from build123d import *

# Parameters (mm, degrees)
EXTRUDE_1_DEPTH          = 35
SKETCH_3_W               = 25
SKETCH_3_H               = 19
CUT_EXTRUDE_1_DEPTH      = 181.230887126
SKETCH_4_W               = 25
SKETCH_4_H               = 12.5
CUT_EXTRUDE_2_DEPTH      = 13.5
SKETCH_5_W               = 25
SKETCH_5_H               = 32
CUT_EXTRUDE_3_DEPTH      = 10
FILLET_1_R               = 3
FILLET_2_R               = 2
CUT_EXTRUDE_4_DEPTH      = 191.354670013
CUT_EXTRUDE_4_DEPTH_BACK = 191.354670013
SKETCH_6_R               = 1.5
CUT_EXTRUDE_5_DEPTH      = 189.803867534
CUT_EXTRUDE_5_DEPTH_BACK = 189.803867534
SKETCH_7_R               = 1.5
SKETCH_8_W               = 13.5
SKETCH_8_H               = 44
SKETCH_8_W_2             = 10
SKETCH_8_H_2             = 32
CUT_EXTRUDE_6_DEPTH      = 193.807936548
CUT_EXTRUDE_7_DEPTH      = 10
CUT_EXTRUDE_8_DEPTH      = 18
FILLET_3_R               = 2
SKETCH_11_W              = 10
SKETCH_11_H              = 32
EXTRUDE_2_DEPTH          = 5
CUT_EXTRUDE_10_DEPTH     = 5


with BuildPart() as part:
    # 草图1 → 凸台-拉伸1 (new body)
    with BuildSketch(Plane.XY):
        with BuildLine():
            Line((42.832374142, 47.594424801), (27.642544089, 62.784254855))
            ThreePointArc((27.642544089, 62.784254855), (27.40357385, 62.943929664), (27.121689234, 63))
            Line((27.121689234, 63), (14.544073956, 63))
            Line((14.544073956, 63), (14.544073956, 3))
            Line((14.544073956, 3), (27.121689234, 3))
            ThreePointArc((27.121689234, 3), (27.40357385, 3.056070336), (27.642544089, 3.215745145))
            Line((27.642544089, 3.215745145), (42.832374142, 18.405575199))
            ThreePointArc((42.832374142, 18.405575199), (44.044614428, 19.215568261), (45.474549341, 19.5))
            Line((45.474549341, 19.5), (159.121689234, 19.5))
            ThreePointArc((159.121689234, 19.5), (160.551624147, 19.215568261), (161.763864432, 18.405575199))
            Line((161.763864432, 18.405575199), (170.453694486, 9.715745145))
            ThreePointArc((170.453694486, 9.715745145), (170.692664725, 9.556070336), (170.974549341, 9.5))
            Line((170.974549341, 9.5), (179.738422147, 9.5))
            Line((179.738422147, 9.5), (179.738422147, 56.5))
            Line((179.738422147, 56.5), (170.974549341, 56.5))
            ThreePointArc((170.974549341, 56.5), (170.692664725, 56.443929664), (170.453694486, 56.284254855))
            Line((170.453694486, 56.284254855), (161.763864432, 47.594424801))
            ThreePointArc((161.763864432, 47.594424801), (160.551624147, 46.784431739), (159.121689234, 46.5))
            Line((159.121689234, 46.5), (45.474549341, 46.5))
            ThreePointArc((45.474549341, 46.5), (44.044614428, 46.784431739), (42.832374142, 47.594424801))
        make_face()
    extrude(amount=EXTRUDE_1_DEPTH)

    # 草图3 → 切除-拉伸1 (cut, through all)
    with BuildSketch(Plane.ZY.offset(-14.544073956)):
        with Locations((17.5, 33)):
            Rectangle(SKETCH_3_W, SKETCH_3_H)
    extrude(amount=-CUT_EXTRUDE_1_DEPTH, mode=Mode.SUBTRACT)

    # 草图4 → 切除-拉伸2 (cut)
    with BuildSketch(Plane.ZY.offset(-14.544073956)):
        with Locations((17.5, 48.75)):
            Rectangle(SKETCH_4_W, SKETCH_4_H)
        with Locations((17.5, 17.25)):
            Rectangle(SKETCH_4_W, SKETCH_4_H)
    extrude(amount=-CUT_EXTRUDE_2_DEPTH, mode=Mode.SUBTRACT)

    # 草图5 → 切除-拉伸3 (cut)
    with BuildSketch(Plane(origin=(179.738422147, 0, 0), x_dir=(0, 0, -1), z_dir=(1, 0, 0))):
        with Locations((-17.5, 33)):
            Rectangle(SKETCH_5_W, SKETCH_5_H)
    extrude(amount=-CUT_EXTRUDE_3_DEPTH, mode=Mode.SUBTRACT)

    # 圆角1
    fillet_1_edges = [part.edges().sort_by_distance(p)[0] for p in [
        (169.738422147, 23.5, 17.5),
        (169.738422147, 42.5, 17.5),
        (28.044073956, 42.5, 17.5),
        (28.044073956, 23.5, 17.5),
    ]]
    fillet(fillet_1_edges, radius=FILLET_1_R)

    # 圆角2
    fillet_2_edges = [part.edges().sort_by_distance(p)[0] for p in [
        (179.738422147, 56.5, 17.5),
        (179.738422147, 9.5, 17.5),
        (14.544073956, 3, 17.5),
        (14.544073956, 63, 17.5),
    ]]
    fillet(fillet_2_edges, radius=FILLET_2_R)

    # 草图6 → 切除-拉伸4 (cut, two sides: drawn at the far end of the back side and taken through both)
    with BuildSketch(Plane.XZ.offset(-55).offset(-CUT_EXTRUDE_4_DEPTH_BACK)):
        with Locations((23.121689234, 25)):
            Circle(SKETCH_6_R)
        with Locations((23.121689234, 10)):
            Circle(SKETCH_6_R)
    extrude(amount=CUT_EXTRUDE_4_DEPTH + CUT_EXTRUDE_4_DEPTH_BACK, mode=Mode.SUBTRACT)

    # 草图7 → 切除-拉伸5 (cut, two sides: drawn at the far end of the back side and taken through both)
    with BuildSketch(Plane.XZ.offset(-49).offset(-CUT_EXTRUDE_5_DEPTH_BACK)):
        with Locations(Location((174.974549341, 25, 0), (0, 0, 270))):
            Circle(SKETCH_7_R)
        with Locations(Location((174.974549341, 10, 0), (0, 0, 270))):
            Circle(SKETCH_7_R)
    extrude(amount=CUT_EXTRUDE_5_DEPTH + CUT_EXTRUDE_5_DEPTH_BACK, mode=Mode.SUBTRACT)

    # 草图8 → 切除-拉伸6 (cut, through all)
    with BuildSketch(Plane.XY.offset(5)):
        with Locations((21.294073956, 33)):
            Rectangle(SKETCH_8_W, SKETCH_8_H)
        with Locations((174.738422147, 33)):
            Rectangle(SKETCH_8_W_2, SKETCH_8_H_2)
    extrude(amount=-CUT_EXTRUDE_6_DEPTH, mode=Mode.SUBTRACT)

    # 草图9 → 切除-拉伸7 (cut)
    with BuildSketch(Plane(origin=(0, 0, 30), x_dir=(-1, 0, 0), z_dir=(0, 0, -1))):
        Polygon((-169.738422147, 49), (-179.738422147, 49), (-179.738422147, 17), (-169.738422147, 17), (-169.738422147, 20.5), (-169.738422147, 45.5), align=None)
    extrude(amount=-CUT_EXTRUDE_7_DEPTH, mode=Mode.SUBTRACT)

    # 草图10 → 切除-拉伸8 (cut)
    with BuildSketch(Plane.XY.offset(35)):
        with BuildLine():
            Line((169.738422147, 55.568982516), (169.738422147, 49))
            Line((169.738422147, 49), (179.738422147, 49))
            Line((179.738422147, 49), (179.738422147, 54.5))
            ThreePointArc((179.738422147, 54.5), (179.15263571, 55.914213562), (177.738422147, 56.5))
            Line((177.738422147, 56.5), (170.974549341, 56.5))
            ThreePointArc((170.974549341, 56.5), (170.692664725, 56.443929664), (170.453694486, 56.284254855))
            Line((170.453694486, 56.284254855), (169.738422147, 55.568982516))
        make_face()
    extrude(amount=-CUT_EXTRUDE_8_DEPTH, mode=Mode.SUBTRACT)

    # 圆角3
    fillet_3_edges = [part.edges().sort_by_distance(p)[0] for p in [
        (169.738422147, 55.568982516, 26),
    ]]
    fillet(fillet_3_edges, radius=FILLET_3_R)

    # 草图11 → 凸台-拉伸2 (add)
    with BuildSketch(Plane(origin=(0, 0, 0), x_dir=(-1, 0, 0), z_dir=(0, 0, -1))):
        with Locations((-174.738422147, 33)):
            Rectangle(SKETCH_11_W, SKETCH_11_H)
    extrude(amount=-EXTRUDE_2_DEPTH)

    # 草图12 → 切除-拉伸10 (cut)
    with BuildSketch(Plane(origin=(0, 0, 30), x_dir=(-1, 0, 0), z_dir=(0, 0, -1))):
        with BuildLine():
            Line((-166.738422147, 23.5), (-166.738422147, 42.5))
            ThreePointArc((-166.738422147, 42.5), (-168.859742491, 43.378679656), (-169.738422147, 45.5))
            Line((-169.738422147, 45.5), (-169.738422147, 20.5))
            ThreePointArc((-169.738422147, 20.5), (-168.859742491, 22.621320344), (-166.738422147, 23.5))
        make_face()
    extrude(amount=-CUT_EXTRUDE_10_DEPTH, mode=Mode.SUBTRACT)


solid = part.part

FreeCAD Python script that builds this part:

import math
import FreeCAD as App
import Part
import Sketcher

V = App.Vector
Q = App.Units.Quantity


def edges_at(feature, points):
    """Names of the edges that pass closest to the given points."""
    edges = feature.Shape.Edges
    near = lambda p: min(range(len(edges)), key=lambda i: edges[i].distToShape(Part.Vertex(*p))[0])
    return sorted({f"Edge{near(p) + 1}" for p in points})

doc = App.newDocument("Part")
body = doc.addObject("PartDesign::Body", "Body")

# Sketch on XY plane
sketch1 = body.newObject("Sketcher::SketchObject", "Sketch")
sketch1.AttachmentSupport = (doc.getObject("XY_Plane"), [""])
sketch1.MapMode = "FlatFace"
sketch1.addGeometry([
    Part.LineSegment(V(42.8, 47.6, 0), V(27.6, 62.8, 0)),  # 0
    Part.ArcOfCircle(Part.Circle(V(27.1, 62.3, 0), V(0, 0, 1), 0.7), math.radians(45), math.radians(90)),  # 1
    Part.LineSegment(V(27.1, 63, 0), V(14.5, 63, 0)),  # 2
    Part.LineSegment(V(14.5, 63, 0), V(14.5, 3, 0)),  # 3
    Part.LineSegment(V(14.5, 3, 0), V(27.1, 3, 0)),  # 4
    Part.ArcOfCircle(Part.Circle(V(27.1, 3.7, 0), V(0, 0, 1), 0.7), math.radians(-90), math.radians(-45)),  # 5
    Part.LineSegment(V(27.6, 3.2, 0), V(42.8, 18.4, 0)),  # 6
    Part.ArcOfCircle(Part.Circle(V(45.5, 15.8, 0), V(0, 0, 1), 3.7), math.radians(90), math.radians(135)),  # 7
    Part.LineSegment(V(45.5, 19.5, 0), V(159.1, 19.5, 0)),  # 8
    Part.ArcOfCircle(Part.Circle(V(159.1, 15.8, 0), V(0, 0, 1), 3.7), math.radians(45), math.radians(90)),  # 9
    Part.LineSegment(V(161.8, 18.4, 0), V(170.5, 9.7, 0)),  # 10
    Part.ArcOfCircle(Part.Circle(V(171, 10.2, 0), V(0, 0, 1), 0.7), math.radians(-135), math.radians(-90)),  # 11
    Part.LineSegment(V(171, 9.5, 0), V(179.7, 9.5, 0)),  # 12
    Part.LineSegment(V(179.7, 9.5, 0), V(179.7, 56.5, 0)),  # 13
    Part.LineSegment(V(179.7, 56.5, 0), V(171, 56.5, 0)),  # 14
    Part.ArcOfCircle(Part.Circle(V(171, 55.8, 0), V(0, 0, 1), 0.7), math.radians(90), math.radians(135)),  # 15
    Part.LineSegment(V(170.5, 56.3, 0), V(161.8, 47.6, 0)),  # 16
    Part.ArcOfCircle(Part.Circle(V(159.1, 50.2, 0), V(0, 0, 1), 3.7), math.radians(-90), math.radians(-45)),  # 17
    Part.LineSegment(V(159.1, 46.5, 0), V(45.5, 46.5, 0)),  # 18
    Part.ArcOfCircle(Part.Circle(V(45.5, 50.2, 0), V(0, 0, 1), 3.7), math.radians(-135), math.radians(-90)),  # 19
], False)
sketch1.addConstraint([
    Sketcher.Constraint("Tangent", 0, 2, 1, 1),
    Sketcher.Constraint("Tangent", 1, 2, 2, 1),
    Sketcher.Constraint("Coincident", 2, 2, 3, 1),
    Sketcher.Constraint("Coincident", 3, 2, 4, 1),
    Sketcher.Constraint("Tangent", 4, 2, 5, 1),
    Sketcher.Constraint("Tangent", 5, 2, 6, 1),
    Sketcher.Constraint("Tangent", 6, 2, 7, 2),
    Sketcher.Constraint("Tangent", 7, 1, 8, 1),
    Sketcher.Constraint("Tangent", 8, 2, 9, 2),
    Sketcher.Constraint("Tangent", 9, 1, 10, 1),
    Sketcher.Constraint("Tangent", 10, 2, 11, 1),
    Sketcher.Constraint("Tangent", 11, 2, 12, 1),
    Sketcher.Constraint("Coincident", 12, 2, 13, 1),
    Sketcher.Constraint("Coincident", 13, 2, 14, 1),
    Sketcher.Constraint("Tangent", 14, 2, 15, 1),
    Sketcher.Constraint("Tangent", 15, 2, 16, 1),
    Sketcher.Constraint("Tangent", 16, 2, 17, 2),
    Sketcher.Constraint("Tangent", 17, 1, 18, 1),
    Sketcher.Constraint("Tangent", 18, 2, 19, 2),
    Sketcher.Constraint("Tangent", 19, 1, 0, 1),
    Sketcher.Constraint("Horizontal", 2),
    Sketcher.Constraint("Vertical", 3),
    Sketcher.Constraint("Horizontal", 4),
    Sketcher.Constraint("Horizontal", 8),
    Sketcher.Constraint("Horizontal", 12),
    Sketcher.Constraint("Vertical", 13),
    Sketcher.Constraint("Horizontal", 14),
    Sketcher.Constraint("Horizontal", 18),
    Sketcher.Constraint("Equal", 1, 5),
    Sketcher.Constraint("Equal", 7, 9),
    Sketcher.Constraint("Equal", 5, 11),
    Sketcher.Constraint("Equal", 11, 15),
    Sketcher.Constraint("Equal", 9, 17),
    Sketcher.Constraint("Equal", 17, 19),
    Sketcher.Constraint("Perpendicular", 0, 6),
    Sketcher.Constraint("Perpendicular", 6, 10),
    Sketcher.Constraint("Perpendicular", 10, 16),
    Sketcher.Constraint("Horizontal", 6, 2, 9, 1),
    Sketcher.Constraint("Vertical", 1, 3, 5, 3),
    Sketcher.Constraint("Vertical", 11, 3, 15, 3),
    Sketcher.Constraint("Vertical", 9, 3, 17, 3),
    Sketcher.Constraint("Vertical", 7, 3, 19, 3),
    Sketcher.Constraint("DistanceY", 3, 2, 3, 1, 60.0),
    Sketcher.Constraint("DistanceY", 13, 1, 13, 2, 47.0),
    Sketcher.Constraint("DistanceY", -1, 1, 1, 2, 63.0),
    Sketcher.Constraint("DistanceX", 5, 3, 9, 3, 132.0),
    Sketcher.Constraint("DistanceY", 9, 3, 15, 3, 40.0),
    Sketcher.Constraint("DistanceY", 11, 2, 8, 2, 10.0),
    Sketcher.Constraint("Radius", 1, 0.7366),
    Sketcher.Constraint("DistanceX", 2, 2, 2, 1, 12.577615),
    Sketcher.Constraint("DistanceX", 12, 1, 12, 2, 8.763873),
    Sketcher.Constraint("DistanceX", -1, 1, 1, 3, 27.121689),
])
pad1 = body.newObject("PartDesign::Pad", "Pad")
pad1.Profile = sketch1
pad1.Length = 35

# Sketch on YZ plane
sketch2 = body.newObject("Sketcher::SketchObject", "Sketch001")
sketch2.AttachmentSupport = (doc.getObject("YZ_Plane"), [""])
sketch2.MapMode = "FlatFace"
sketch2.AttachmentOffset = App.Placement(V(0, 0, 14.544074), App.Rotation())
sketch2.addGeometry([
    Part.LineSegment(V(42, 5, 0), V(24, 5, 0)),
    Part.LineSegment(V(24, 5, 0), V(24, 30, 0)),
    Part.LineSegment(V(24, 30, 0), V(42, 30, 0)),
    Part.LineSegment(V(42, 30, 0), V(42, 5, 0)),
], False)
sketch2.addConstraint([
    Sketcher.Constraint("Coincident", 0, 2, 1, 1),
    Sketcher.Constraint("Coincident", 1, 2, 2, 1),
    Sketcher.Constraint("Coincident", 2, 2, 3, 1),
    Sketcher.Constraint("Coincident", 3, 2, 0, 1),
    Sketcher.Constraint("Horizontal", 0),
    Sketcher.Constraint("Vertical", 1),
    Sketcher.Constraint("Horizontal", 2),
    Sketcher.Constraint("Vertical", 3),
    Sketcher.Constraint("DistanceX", 0, 2, 0, 1, 19.0),
    Sketcher.Constraint("DistanceY", 1, 1, 1, 2, 25.0),
    Sketcher.Constraint("DistanceY", -1, 1, 0, 2, 5.0),
    Sketcher.Constraint("DistanceX", -1, 1, 0, 2, 23.5),
])
pocket1 = body.newObject("PartDesign::Pocket", "Pocket")
pocket1.Profile = sketch2
pocket1.Type = "ThroughAll"
pocket1.Reversed = True

# Sketch on YZ plane
sketch3 = body.newObject("Sketcher::SketchObject", "Sketch002")
sketch3.AttachmentSupport = (doc.getObject("YZ_Plane"), [""])
sketch3.MapMode = "FlatFace"
sketch3.AttachmentOffset = App.Placement(V(0, 0, 14.544074), App.Rotation())
sketch3.addGeometry([
    Part.LineSegment(V(55, 5, 0), V(42, 5, 0)),  # 0
    Part.LineSegment(V(42, 5, 0), V(42, 30, 0)),  # 1
    Part.LineSegment(V(42, 30, 0), V(55, 30, 0)),  # 2
    Part.LineSegment(V(55, 30, 0), V(55, 5, 0)),  # 3
    Part.LineSegment(V(24, 5, 0), V(11, 5, 0)),  # 4
    Part.LineSegment(V(11, 5, 0), V(11, 30, 0)),  # 5
    Part.LineSegment(V(11, 30, 0), V(24, 30, 0)),  # 6
    Part.LineSegment(V(24, 30, 0), V(24, 5, 0)),  # 7
], False)
sketch3.addConstraint([
    Sketcher.Constraint("Coincident", 0, 2, 1, 1),
    Sketcher.Constraint("Coincident", 1, 2, 2, 1),
    Sketcher.Constraint("Coincident", 2, 2, 3, 1),
    Sketcher.Constraint("Coincident", 3, 2, 0, 1),
    Sketcher.Constraint("Coincident", 4, 2, 5, 1),
    Sketcher.Constraint("Coincident", 5, 2, 6, 1),
    Sketcher.Constraint("Coincident", 6, 2, 7, 1),
    Sketcher.Constraint("Coincident", 7, 2, 4, 1),
    Sketcher.Constraint("Horizontal", 0),
    Sketcher.Constraint("Vertical", 1),
    Sketcher.Constraint("Horizontal", 2),
    Sketcher.Constraint("Vertical", 3),
    Sketcher.Constraint("Horizontal", 4),
    Sketcher.Constraint("Vertical", 5),
    Sketcher.Constraint("Horizontal", 6),
    Sketcher.Constraint("Vertical", 7),
    Sketcher.Constraint("Horizontal", 3, 2, 4, 2),
    Sketcher.Constraint("Horizontal", 2, 2, 5, 2),
    Sketcher.Constraint("Equal", 2, 4),
    Sketcher.Constraint("DistanceY", 1, 1, 1, 2, 25.0),
    Sketcher.Constraint("DistanceX", 0, 2, 0, 1, 12.5),
    Sketcher.Constraint("DistanceY", -1, 1, 0, 2, 5.0),
    Sketcher.Constraint("DistanceX", -1, 1, 2, 2, 55.0),
    Sketcher.Constraint("DistanceX", -1, 1, 4, 2, 11.0),
])
pocket2 = body.newObject("PartDesign::Pocket", "Pocket001")
pocket2.Profile = sketch3
pocket2.Length = 13.5
pocket2.Reversed = True

# Sketch on YZ plane
sketch4 = body.newObject("Sketcher::SketchObject", "Sketch003")
sketch4.AttachmentSupport = (doc.getObject("YZ_Plane"), [""])
sketch4.MapMode = "FlatFace"
sketch4.AttachmentOffset = App.Placement(V(0, 0, 179.738422), App.Rotation())
sketch4.addGeometry([
    Part.LineSegment(V(49, 30, 0), V(17, 30, 0)),
    Part.LineSegment(V(17, 30, 0), V(17, 5, 0)),
    Part.LineSegment(V(17, 5, 0), V(49, 5, 0)),
    Part.LineSegment(V(49, 5, 0), V(49, 30, 0)),
], False)
sketch4.addConstraint([
    Sketcher.Constraint("Coincident", 0, 2, 1, 1),
    Sketcher.Constraint("Coincident", 1, 2, 2, 1),
    Sketcher.Constraint("Coincident", 2, 2, 3, 1),
    Sketcher.Constraint("Coincident", 3, 2, 0, 1),
    Sketcher.Constraint("Horizontal", 0),
    Sketcher.Constraint("Vertical", 1),
    Sketcher.Constraint("Horizontal", 2),
    Sketcher.Constraint("Vertical", 3),
    Sketcher.Constraint("DistanceX", 0, 2, 0, 1, 32.0),
    Sketcher.Constraint("DistanceY", 1, 2, 1, 1, 25.0),
    Sketcher.Constraint("DistanceX", -1, 1, 0, 2, 17.0),
    Sketcher.Constraint("DistanceY", -1, 1, 0, 2, 30.0),
])
pocket3 = body.newObject("PartDesign::Pocket", "Pocket002")
pocket3.Profile = sketch4
pocket3.Length = 10
doc.recompute()

fillet = body.newObject("PartDesign::Fillet", "Fillet")
fillet.Base = (pocket3, edges_at(pocket3, [
    (169.738, 23.5, 17.5),
    (169.738, 42.5, 17.5),
    (28.044, 42.5, 17.5),
    (28.044, 23.5, 17.5),
]))
fillet.Radius = 3
doc.recompute()

fillet2 = body.newObject("PartDesign::Fillet", "Fillet001")
fillet2.Base = (fillet, edges_at(fillet, [
    (179.738, 56.5, 17.5),
    (179.738, 9.5, 17.5),
    (14.544, 3, 17.5),
    (14.544, 63, 17.5),
]))
fillet2.Radius = 2

# Sketch on XZ plane
sketch5 = body.newObject("Sketcher::SketchObject", "Sketch004")
sketch5.AttachmentSupport = (doc.getObject("XZ_Plane"), [""])
sketch5.MapMode = "FlatFace"
sketch5.AttachmentOffset = App.Placement(V(0, 0, -55), App.Rotation())
sketch5.addGeometry([
    Part.Circle(V(23.1, 25, 0), V(0, 0, 1), 1.5),
    Part.Circle(V(23.1, 10, 0), V(0, 0, 1), 1.5),
], False)
sketch5.addConstraint([
    Sketcher.Constraint("Equal", 0, 1),
    Sketcher.Constraint("Vertical", 0, 3, 1, 3),
    Sketcher.Constraint("Diameter", 0, 3.0),
    Sketcher.Constraint("DistanceY", -1, 1, 0, 3, 25.0),
    Sketcher.Constraint("DistanceY", -1, 1, 1, 3, 10.0),
    Sketcher.Constraint("DistanceX", -1, 1, 0, 3, 23.121689),
])
pocket4 = body.newObject("PartDesign::Pocket", "Pocket003")
pocket4.Profile = sketch5
pocket4.Type = "ThroughAll"
pocket4.Midplane = True

# Sketch on XZ plane
sketch6 = body.newObject("Sketcher::SketchObject", "Sketch005")
sketch6.AttachmentSupport = (doc.getObject("XZ_Plane"), [""])
sketch6.MapMode = "FlatFace"
sketch6.AttachmentOffset = App.Placement(V(0, 0, -49), App.Rotation())
sketch6.addGeometry([
    Part.Circle(V(175, 25, 0), V(0, 0, 1), 1.5),
    Part.Circle(V(175, 10, 0), V(0, 0, 1), 1.5),
], False)
sketch6.addConstraint([
    Sketcher.Constraint("Equal", 0, 1),
    Sketcher.Constraint("Vertical", 0, 3, 1, 3),
    Sketcher.Constraint("Diameter", 0, 3.0),
    Sketcher.Constraint("DistanceY", -1, 1, 0, 3, 25.0),
    Sketcher.Constraint("DistanceY", -1, 1, 1, 3, 10.0),
    Sketcher.Constraint("DistanceX", -1, 1, 0, 3, 174.974549),
])
pocket5 = body.newObject("PartDesign::Pocket", "Pocket004")
pocket5.Profile = sketch6
pocket5.Type = "ThroughAll"
pocket5.Midplane = True

# Sketch on XY plane
sketch7 = body.newObject("Sketcher::SketchObject", "Sketch006")
sketch7.AttachmentSupport = (doc.getObject("XY_Plane"), [""])
sketch7.MapMode = "FlatFace"
sketch7.AttachmentOffset = App.Placement(V(0, 0, 5), App.Rotation())
sketch7.addGeometry([
    Part.LineSegment(V(15, 55, 0), V(15, 11, 0)),  # 0
    Part.LineSegment(V(15, 11, 0), V(28, 11, 0)),  # 1
    Part.LineSegment(V(28, 11, 0), V(28, 55, 0)),  # 2
    Part.LineSegment(V(28, 55, 0), V(15, 55, 0)),  # 3
    Part.LineSegment(V(170, 49, 0), V(170, 17, 0)),  # 4
    Part.LineSegment(V(170, 17, 0), V(180, 17, 0)),  # 5
    Part.LineSegment(V(180, 17, 0), V(180, 49, 0)),  # 6
    Part.LineSegment(V(180, 49, 0), V(170, 49, 0)),  # 7
], False)
sketch7.addConstraint([
    Sketcher.Constraint("Coincident", 0, 2, 1, 1),
    Sketcher.Constraint("Coincident", 1, 2, 2, 1),
    Sketcher.Constraint("Coincident", 2, 2, 3, 1),
    Sketcher.Constraint("Coincident", 3, 2, 0, 1),
    Sketcher.Constraint("Coincident", 4, 2, 5, 1),
    Sketcher.Constraint("Coincident", 5, 2, 6, 1),
    Sketcher.Constraint("Coincident", 6, 2, 7, 1),
    Sketcher.Constraint("Coincident", 7, 2, 4, 1),
    Sketcher.Constraint("Vertical", 0),
    Sketcher.Constraint("Horizontal", 1),
    Sketcher.Constraint("Vertical", 2),
    Sketcher.Constraint("Horizontal", 3),
    Sketcher.Constraint("Vertical", 4),
    Sketcher.Constraint("Horizontal", 5),
    Sketcher.Constraint("Vertical", 6),
    Sketcher.Constraint("Horizontal", 7),
    Sketcher.Constraint("DistanceX", 5, 1, 5, 2, 10.0),
    Sketcher.Constraint("DistanceY", 0, 2, 0, 1, 44.0),
    Sketcher.Constraint("DistanceY", 4, 2, 4, 1, 32.0),
    Sketcher.Constraint("DistanceX", 1, 1, 1, 2, 13.5),
    Sketcher.Constraint("DistanceY", -1, 1, 0, 2, 11.0),
    Sketcher.Constraint("DistanceY", -1, 1, 4, 2, 17.0),
    Sketcher.Constraint("DistanceX", 1, 2, 4, 2, 141.694348),
    Sketcher.Constraint("DistanceX", -1, 1, 0, 2, 14.544074),
])
pocket6 = body.newObject("PartDesign::Pocket", "Pocket005")
pocket6.Profile = sketch7
pocket6.Type = "ThroughAll"

# Sketch on XY plane
sketch8 = body.newObject("Sketcher::SketchObject", "Sketch007")
sketch8.AttachmentSupport = (doc.getObject("XY_Plane"), [""])
sketch8.MapMode = "FlatFace"
sketch8.AttachmentOffset = App.Placement(V(0, 0, 30), App.Rotation())
sketch8.addGeometry([
    Part.LineSegment(V(170, 49, 0), V(180, 49, 0)),
    Part.LineSegment(V(180, 49, 0), V(180, 17, 0)),
    Part.LineSegment(V(180, 17, 0), V(170, 17, 0)),
    Part.LineSegment(V(170, 17, 0), V(170, 49, 0)),
], False)
sketch8.addConstraint([
    Sketcher.Constraint("Coincident", 0, 2, 1, 1),
    Sketcher.Constraint("Coincident", 1, 2, 2, 1),
    Sketcher.Constraint("Coincident", 2, 2, 3, 1),
    Sketcher.Constraint("Coincident", 3, 2, 0, 1),
    Sketcher.Constraint("Horizontal", 0),
    Sketcher.Constraint("Vertical", 1),
    Sketcher.Constraint("Horizontal", 2),
    Sketcher.Constraint("Vertical", 3),
    Sketcher.Constraint("DistanceX", 0, 1, 0, 2, 10.0),
    Sketcher.Constraint("DistanceY", 1, 2, 1, 1, 32.0),
    Sketcher.Constraint("DistanceY", -1, 1, 0, 2, 49.0),
    Sketcher.Constraint("DistanceX", -1, 1, 0, 2, 179.738422),
])
pocket7 = body.newObject("PartDesign::Pocket", "Pocket006")
pocket7.Profile = sketch8
pocket7.Length = 10
pocket7.Reversed = True

# Sketch on XY plane
sketch9 = body.newObject("Sketcher::SketchObject", "Sketch008")
sketch9.AttachmentSupport = (doc.getObject("XY_Plane"), [""])
sketch9.MapMode = "FlatFace"
sketch9.AttachmentOffset = App.Placement(V(0, 0, 35), App.Rotation())
sketch9.addGeometry([
    Part.LineSegment(V(169.7, 55.6, 0), V(169.7, 49, 0)),  # 0
    Part.LineSegment(V(169.7, 49, 0), V(179.7, 49, 0)),  # 1
    Part.LineSegment(V(179.7, 49, 0), V(179.7, 54.5, 0)),  # 2
    Part.ArcOfCircle(Part.Circle(V(177.7, 54.5, 0), V(0, 0, 1), 2), math.radians(0), math.radians(90)),  # 3
    Part.LineSegment(V(177.7, 56.5, 0), V(171, 56.5, 0)),  # 4
    Part.ArcOfCircle(Part.Circle(V(171, 55.8, 0), V(0, 0, 1), 0.7), math.radians(90), math.radians(135)),  # 5
    Part.LineSegment(V(170.5, 56.3, 0), V(169.7, 55.6, 0)),  # 6
], False)
sketch9.addConstraint([
    Sketcher.Constraint("Coincident", 0, 2, 1, 1),
    Sketcher.Constraint("Coincident", 1, 2, 2, 1),
    Sketcher.Constraint("Tangent", 2, 2, 3, 1),
    Sketcher.Constraint("Tangent", 3, 2, 4, 1),
    Sketcher.Constraint("Tangent", 4, 2, 5, 1),
    Sketcher.Constraint("Tangent", 5, 2, 6, 1),
    Sketcher.Constraint("Coincident", 6, 2, 0, 1),
    Sketcher.Constraint("Vertical", 0),
    Sketcher.Constraint("Horizontal", 1),
    Sketcher.Constraint("Vertical", 2),
    Sketcher.Constraint("Horizontal", 4),
    Sketcher.Constraint("Radius", 3, 2.0),
    Sketcher.Constraint("DistanceX", 1, 1, 1, 2, 10.0),
    Sketcher.Constraint("Angle", 6, Q("-135 deg")),
    Sketcher.Constraint("DistanceY", 2, 1, 2, 2, 5.5),
    Sketcher.Constraint("DistanceY", -1, 1, 0, 2, 49.0),
    Sketcher.Constraint("Radius", 5, 0.7366),
    Sketcher.Constraint("DistanceX", 4, 2, 4, 1, 6.763873),
    Sketcher.Constraint("DistanceX", -1, 1, 5, 3, 170.974549),
])
pocket8 = body.newObject("PartDesign::Pocket", "Pocket007")
pocket8.Profile = sketch9
pocket8.Length = 18
doc.recompute()

fillet3 = body.newObject("PartDesign::Fillet", "Fillet002")
fillet3.Base = (pocket8, edges_at(pocket8, [(169.738, 55.569, 26)]))
fillet3.Radius = 2

# Sketch on XY plane
sketch10 = body.newObject("Sketcher::SketchObject", "Sketch009")
sketch10.AttachmentSupport = (doc.getObject("XY_Plane"), [""])
sketch10.MapMode = "FlatFace"
sketch10.addGeometry([
    Part.LineSegment(V(180, 49, 0), V(180, 17, 0)),
    Part.LineSegment(V(180, 17, 0), V(170, 17, 0)),
    Part.LineSegment(V(170, 17, 0), V(170, 49, 0)),
    Part.LineSegment(V(170, 49, 0), V(180, 49, 0)),
], False)
sketch10.addConstraint([
    Sketcher.Constraint("Coincident", 0, 2, 1, 1),
    Sketcher.Constraint("Coincident", 1, 2, 2, 1),
    Sketcher.Constraint("Coincident", 2, 2, 3, 1),
    Sketcher.Constraint("Coincident", 3, 2, 0, 1),
    Sketcher.Constraint("Vertical", 0),
    Sketcher.Constraint("Horizontal", 1),
    Sketcher.Constraint("Vertical", 2),
    Sketcher.Constraint("Horizontal", 3),
    Sketcher.Constraint("DistanceX", 1, 2, 1, 1, 10.0),
    Sketcher.Constraint("DistanceY", 0, 2, 0, 1, 32.0),
    Sketcher.Constraint("DistanceY", -1, 1, 0, 2, 17.0),
    Sketcher.Constraint("DistanceX", -1, 1, 0, 2, 179.738422),
])
pad2 = body.newObject("PartDesign::Pad", "Pad001")
pad2.Profile = sketch10
pad2.Length = 5

# Sketch on XY plane
sketch11 = body.newObject("Sketcher::SketchObject", "Sketch010")
sketch11.AttachmentSupport = (doc.getObject("XY_Plane"), [""])
sketch11.MapMode = "FlatFace"
sketch11.AttachmentOffset = App.Placement(V(0, 0, 30), App.Rotation())
sketch11.addGeometry([
    Part.LineSegment(V(166.7, 23.5, 0), V(166.7, 42.5, 0)),
    Part.ArcOfCircle(Part.Circle(V(166.7, 45.5, 0), V(0, 0, 1), 3), math.radians(-90), math.radians(0)),
    Part.LineSegment(V(169.7, 45.5, 0), V(169.7, 20.5, 0)),
    Part.ArcOfCircle(Part.Circle(V(166.7, 20.5, 0), V(0, 0, 1), 3), math.radians(0), math.radians(90)),
], False)
sketch11.addConstraint([
    Sketcher.Constraint("Coincident", 0, 2, 1, 1),
    Sketcher.Constraint("Tangent", 1, 2, 2, 1),
    Sketcher.Constraint("Tangent", 2, 2, 3, 1),
    Sketcher.Constraint("Coincident", 3, 2, 0, 1),
    Sketcher.Constraint("Vertical", 0),
    Sketcher.Constraint("Vertical", 2),
    Sketcher.Constraint("Equal", 1, 3),
    Sketcher.Constraint("Vertical", 3, 3, 0, 2),
    Sketcher.Constraint("Radius", 1, 3.0),
    Sketcher.Constraint("DistanceY", 0, 1, 0, 2, 19.0),
    Sketcher.Constraint("DistanceY", -1, 1, 1, 3, 45.5),
    Sketcher.Constraint("DistanceX", -1, 1, 1, 3, 166.738422),
])
pocket9 = body.newObject("PartDesign::Pocket", "Pocket008")
pocket9.Profile = sketch11
pocket9.Length = 5
pocket9.Reversed = True

doc.recompute()
